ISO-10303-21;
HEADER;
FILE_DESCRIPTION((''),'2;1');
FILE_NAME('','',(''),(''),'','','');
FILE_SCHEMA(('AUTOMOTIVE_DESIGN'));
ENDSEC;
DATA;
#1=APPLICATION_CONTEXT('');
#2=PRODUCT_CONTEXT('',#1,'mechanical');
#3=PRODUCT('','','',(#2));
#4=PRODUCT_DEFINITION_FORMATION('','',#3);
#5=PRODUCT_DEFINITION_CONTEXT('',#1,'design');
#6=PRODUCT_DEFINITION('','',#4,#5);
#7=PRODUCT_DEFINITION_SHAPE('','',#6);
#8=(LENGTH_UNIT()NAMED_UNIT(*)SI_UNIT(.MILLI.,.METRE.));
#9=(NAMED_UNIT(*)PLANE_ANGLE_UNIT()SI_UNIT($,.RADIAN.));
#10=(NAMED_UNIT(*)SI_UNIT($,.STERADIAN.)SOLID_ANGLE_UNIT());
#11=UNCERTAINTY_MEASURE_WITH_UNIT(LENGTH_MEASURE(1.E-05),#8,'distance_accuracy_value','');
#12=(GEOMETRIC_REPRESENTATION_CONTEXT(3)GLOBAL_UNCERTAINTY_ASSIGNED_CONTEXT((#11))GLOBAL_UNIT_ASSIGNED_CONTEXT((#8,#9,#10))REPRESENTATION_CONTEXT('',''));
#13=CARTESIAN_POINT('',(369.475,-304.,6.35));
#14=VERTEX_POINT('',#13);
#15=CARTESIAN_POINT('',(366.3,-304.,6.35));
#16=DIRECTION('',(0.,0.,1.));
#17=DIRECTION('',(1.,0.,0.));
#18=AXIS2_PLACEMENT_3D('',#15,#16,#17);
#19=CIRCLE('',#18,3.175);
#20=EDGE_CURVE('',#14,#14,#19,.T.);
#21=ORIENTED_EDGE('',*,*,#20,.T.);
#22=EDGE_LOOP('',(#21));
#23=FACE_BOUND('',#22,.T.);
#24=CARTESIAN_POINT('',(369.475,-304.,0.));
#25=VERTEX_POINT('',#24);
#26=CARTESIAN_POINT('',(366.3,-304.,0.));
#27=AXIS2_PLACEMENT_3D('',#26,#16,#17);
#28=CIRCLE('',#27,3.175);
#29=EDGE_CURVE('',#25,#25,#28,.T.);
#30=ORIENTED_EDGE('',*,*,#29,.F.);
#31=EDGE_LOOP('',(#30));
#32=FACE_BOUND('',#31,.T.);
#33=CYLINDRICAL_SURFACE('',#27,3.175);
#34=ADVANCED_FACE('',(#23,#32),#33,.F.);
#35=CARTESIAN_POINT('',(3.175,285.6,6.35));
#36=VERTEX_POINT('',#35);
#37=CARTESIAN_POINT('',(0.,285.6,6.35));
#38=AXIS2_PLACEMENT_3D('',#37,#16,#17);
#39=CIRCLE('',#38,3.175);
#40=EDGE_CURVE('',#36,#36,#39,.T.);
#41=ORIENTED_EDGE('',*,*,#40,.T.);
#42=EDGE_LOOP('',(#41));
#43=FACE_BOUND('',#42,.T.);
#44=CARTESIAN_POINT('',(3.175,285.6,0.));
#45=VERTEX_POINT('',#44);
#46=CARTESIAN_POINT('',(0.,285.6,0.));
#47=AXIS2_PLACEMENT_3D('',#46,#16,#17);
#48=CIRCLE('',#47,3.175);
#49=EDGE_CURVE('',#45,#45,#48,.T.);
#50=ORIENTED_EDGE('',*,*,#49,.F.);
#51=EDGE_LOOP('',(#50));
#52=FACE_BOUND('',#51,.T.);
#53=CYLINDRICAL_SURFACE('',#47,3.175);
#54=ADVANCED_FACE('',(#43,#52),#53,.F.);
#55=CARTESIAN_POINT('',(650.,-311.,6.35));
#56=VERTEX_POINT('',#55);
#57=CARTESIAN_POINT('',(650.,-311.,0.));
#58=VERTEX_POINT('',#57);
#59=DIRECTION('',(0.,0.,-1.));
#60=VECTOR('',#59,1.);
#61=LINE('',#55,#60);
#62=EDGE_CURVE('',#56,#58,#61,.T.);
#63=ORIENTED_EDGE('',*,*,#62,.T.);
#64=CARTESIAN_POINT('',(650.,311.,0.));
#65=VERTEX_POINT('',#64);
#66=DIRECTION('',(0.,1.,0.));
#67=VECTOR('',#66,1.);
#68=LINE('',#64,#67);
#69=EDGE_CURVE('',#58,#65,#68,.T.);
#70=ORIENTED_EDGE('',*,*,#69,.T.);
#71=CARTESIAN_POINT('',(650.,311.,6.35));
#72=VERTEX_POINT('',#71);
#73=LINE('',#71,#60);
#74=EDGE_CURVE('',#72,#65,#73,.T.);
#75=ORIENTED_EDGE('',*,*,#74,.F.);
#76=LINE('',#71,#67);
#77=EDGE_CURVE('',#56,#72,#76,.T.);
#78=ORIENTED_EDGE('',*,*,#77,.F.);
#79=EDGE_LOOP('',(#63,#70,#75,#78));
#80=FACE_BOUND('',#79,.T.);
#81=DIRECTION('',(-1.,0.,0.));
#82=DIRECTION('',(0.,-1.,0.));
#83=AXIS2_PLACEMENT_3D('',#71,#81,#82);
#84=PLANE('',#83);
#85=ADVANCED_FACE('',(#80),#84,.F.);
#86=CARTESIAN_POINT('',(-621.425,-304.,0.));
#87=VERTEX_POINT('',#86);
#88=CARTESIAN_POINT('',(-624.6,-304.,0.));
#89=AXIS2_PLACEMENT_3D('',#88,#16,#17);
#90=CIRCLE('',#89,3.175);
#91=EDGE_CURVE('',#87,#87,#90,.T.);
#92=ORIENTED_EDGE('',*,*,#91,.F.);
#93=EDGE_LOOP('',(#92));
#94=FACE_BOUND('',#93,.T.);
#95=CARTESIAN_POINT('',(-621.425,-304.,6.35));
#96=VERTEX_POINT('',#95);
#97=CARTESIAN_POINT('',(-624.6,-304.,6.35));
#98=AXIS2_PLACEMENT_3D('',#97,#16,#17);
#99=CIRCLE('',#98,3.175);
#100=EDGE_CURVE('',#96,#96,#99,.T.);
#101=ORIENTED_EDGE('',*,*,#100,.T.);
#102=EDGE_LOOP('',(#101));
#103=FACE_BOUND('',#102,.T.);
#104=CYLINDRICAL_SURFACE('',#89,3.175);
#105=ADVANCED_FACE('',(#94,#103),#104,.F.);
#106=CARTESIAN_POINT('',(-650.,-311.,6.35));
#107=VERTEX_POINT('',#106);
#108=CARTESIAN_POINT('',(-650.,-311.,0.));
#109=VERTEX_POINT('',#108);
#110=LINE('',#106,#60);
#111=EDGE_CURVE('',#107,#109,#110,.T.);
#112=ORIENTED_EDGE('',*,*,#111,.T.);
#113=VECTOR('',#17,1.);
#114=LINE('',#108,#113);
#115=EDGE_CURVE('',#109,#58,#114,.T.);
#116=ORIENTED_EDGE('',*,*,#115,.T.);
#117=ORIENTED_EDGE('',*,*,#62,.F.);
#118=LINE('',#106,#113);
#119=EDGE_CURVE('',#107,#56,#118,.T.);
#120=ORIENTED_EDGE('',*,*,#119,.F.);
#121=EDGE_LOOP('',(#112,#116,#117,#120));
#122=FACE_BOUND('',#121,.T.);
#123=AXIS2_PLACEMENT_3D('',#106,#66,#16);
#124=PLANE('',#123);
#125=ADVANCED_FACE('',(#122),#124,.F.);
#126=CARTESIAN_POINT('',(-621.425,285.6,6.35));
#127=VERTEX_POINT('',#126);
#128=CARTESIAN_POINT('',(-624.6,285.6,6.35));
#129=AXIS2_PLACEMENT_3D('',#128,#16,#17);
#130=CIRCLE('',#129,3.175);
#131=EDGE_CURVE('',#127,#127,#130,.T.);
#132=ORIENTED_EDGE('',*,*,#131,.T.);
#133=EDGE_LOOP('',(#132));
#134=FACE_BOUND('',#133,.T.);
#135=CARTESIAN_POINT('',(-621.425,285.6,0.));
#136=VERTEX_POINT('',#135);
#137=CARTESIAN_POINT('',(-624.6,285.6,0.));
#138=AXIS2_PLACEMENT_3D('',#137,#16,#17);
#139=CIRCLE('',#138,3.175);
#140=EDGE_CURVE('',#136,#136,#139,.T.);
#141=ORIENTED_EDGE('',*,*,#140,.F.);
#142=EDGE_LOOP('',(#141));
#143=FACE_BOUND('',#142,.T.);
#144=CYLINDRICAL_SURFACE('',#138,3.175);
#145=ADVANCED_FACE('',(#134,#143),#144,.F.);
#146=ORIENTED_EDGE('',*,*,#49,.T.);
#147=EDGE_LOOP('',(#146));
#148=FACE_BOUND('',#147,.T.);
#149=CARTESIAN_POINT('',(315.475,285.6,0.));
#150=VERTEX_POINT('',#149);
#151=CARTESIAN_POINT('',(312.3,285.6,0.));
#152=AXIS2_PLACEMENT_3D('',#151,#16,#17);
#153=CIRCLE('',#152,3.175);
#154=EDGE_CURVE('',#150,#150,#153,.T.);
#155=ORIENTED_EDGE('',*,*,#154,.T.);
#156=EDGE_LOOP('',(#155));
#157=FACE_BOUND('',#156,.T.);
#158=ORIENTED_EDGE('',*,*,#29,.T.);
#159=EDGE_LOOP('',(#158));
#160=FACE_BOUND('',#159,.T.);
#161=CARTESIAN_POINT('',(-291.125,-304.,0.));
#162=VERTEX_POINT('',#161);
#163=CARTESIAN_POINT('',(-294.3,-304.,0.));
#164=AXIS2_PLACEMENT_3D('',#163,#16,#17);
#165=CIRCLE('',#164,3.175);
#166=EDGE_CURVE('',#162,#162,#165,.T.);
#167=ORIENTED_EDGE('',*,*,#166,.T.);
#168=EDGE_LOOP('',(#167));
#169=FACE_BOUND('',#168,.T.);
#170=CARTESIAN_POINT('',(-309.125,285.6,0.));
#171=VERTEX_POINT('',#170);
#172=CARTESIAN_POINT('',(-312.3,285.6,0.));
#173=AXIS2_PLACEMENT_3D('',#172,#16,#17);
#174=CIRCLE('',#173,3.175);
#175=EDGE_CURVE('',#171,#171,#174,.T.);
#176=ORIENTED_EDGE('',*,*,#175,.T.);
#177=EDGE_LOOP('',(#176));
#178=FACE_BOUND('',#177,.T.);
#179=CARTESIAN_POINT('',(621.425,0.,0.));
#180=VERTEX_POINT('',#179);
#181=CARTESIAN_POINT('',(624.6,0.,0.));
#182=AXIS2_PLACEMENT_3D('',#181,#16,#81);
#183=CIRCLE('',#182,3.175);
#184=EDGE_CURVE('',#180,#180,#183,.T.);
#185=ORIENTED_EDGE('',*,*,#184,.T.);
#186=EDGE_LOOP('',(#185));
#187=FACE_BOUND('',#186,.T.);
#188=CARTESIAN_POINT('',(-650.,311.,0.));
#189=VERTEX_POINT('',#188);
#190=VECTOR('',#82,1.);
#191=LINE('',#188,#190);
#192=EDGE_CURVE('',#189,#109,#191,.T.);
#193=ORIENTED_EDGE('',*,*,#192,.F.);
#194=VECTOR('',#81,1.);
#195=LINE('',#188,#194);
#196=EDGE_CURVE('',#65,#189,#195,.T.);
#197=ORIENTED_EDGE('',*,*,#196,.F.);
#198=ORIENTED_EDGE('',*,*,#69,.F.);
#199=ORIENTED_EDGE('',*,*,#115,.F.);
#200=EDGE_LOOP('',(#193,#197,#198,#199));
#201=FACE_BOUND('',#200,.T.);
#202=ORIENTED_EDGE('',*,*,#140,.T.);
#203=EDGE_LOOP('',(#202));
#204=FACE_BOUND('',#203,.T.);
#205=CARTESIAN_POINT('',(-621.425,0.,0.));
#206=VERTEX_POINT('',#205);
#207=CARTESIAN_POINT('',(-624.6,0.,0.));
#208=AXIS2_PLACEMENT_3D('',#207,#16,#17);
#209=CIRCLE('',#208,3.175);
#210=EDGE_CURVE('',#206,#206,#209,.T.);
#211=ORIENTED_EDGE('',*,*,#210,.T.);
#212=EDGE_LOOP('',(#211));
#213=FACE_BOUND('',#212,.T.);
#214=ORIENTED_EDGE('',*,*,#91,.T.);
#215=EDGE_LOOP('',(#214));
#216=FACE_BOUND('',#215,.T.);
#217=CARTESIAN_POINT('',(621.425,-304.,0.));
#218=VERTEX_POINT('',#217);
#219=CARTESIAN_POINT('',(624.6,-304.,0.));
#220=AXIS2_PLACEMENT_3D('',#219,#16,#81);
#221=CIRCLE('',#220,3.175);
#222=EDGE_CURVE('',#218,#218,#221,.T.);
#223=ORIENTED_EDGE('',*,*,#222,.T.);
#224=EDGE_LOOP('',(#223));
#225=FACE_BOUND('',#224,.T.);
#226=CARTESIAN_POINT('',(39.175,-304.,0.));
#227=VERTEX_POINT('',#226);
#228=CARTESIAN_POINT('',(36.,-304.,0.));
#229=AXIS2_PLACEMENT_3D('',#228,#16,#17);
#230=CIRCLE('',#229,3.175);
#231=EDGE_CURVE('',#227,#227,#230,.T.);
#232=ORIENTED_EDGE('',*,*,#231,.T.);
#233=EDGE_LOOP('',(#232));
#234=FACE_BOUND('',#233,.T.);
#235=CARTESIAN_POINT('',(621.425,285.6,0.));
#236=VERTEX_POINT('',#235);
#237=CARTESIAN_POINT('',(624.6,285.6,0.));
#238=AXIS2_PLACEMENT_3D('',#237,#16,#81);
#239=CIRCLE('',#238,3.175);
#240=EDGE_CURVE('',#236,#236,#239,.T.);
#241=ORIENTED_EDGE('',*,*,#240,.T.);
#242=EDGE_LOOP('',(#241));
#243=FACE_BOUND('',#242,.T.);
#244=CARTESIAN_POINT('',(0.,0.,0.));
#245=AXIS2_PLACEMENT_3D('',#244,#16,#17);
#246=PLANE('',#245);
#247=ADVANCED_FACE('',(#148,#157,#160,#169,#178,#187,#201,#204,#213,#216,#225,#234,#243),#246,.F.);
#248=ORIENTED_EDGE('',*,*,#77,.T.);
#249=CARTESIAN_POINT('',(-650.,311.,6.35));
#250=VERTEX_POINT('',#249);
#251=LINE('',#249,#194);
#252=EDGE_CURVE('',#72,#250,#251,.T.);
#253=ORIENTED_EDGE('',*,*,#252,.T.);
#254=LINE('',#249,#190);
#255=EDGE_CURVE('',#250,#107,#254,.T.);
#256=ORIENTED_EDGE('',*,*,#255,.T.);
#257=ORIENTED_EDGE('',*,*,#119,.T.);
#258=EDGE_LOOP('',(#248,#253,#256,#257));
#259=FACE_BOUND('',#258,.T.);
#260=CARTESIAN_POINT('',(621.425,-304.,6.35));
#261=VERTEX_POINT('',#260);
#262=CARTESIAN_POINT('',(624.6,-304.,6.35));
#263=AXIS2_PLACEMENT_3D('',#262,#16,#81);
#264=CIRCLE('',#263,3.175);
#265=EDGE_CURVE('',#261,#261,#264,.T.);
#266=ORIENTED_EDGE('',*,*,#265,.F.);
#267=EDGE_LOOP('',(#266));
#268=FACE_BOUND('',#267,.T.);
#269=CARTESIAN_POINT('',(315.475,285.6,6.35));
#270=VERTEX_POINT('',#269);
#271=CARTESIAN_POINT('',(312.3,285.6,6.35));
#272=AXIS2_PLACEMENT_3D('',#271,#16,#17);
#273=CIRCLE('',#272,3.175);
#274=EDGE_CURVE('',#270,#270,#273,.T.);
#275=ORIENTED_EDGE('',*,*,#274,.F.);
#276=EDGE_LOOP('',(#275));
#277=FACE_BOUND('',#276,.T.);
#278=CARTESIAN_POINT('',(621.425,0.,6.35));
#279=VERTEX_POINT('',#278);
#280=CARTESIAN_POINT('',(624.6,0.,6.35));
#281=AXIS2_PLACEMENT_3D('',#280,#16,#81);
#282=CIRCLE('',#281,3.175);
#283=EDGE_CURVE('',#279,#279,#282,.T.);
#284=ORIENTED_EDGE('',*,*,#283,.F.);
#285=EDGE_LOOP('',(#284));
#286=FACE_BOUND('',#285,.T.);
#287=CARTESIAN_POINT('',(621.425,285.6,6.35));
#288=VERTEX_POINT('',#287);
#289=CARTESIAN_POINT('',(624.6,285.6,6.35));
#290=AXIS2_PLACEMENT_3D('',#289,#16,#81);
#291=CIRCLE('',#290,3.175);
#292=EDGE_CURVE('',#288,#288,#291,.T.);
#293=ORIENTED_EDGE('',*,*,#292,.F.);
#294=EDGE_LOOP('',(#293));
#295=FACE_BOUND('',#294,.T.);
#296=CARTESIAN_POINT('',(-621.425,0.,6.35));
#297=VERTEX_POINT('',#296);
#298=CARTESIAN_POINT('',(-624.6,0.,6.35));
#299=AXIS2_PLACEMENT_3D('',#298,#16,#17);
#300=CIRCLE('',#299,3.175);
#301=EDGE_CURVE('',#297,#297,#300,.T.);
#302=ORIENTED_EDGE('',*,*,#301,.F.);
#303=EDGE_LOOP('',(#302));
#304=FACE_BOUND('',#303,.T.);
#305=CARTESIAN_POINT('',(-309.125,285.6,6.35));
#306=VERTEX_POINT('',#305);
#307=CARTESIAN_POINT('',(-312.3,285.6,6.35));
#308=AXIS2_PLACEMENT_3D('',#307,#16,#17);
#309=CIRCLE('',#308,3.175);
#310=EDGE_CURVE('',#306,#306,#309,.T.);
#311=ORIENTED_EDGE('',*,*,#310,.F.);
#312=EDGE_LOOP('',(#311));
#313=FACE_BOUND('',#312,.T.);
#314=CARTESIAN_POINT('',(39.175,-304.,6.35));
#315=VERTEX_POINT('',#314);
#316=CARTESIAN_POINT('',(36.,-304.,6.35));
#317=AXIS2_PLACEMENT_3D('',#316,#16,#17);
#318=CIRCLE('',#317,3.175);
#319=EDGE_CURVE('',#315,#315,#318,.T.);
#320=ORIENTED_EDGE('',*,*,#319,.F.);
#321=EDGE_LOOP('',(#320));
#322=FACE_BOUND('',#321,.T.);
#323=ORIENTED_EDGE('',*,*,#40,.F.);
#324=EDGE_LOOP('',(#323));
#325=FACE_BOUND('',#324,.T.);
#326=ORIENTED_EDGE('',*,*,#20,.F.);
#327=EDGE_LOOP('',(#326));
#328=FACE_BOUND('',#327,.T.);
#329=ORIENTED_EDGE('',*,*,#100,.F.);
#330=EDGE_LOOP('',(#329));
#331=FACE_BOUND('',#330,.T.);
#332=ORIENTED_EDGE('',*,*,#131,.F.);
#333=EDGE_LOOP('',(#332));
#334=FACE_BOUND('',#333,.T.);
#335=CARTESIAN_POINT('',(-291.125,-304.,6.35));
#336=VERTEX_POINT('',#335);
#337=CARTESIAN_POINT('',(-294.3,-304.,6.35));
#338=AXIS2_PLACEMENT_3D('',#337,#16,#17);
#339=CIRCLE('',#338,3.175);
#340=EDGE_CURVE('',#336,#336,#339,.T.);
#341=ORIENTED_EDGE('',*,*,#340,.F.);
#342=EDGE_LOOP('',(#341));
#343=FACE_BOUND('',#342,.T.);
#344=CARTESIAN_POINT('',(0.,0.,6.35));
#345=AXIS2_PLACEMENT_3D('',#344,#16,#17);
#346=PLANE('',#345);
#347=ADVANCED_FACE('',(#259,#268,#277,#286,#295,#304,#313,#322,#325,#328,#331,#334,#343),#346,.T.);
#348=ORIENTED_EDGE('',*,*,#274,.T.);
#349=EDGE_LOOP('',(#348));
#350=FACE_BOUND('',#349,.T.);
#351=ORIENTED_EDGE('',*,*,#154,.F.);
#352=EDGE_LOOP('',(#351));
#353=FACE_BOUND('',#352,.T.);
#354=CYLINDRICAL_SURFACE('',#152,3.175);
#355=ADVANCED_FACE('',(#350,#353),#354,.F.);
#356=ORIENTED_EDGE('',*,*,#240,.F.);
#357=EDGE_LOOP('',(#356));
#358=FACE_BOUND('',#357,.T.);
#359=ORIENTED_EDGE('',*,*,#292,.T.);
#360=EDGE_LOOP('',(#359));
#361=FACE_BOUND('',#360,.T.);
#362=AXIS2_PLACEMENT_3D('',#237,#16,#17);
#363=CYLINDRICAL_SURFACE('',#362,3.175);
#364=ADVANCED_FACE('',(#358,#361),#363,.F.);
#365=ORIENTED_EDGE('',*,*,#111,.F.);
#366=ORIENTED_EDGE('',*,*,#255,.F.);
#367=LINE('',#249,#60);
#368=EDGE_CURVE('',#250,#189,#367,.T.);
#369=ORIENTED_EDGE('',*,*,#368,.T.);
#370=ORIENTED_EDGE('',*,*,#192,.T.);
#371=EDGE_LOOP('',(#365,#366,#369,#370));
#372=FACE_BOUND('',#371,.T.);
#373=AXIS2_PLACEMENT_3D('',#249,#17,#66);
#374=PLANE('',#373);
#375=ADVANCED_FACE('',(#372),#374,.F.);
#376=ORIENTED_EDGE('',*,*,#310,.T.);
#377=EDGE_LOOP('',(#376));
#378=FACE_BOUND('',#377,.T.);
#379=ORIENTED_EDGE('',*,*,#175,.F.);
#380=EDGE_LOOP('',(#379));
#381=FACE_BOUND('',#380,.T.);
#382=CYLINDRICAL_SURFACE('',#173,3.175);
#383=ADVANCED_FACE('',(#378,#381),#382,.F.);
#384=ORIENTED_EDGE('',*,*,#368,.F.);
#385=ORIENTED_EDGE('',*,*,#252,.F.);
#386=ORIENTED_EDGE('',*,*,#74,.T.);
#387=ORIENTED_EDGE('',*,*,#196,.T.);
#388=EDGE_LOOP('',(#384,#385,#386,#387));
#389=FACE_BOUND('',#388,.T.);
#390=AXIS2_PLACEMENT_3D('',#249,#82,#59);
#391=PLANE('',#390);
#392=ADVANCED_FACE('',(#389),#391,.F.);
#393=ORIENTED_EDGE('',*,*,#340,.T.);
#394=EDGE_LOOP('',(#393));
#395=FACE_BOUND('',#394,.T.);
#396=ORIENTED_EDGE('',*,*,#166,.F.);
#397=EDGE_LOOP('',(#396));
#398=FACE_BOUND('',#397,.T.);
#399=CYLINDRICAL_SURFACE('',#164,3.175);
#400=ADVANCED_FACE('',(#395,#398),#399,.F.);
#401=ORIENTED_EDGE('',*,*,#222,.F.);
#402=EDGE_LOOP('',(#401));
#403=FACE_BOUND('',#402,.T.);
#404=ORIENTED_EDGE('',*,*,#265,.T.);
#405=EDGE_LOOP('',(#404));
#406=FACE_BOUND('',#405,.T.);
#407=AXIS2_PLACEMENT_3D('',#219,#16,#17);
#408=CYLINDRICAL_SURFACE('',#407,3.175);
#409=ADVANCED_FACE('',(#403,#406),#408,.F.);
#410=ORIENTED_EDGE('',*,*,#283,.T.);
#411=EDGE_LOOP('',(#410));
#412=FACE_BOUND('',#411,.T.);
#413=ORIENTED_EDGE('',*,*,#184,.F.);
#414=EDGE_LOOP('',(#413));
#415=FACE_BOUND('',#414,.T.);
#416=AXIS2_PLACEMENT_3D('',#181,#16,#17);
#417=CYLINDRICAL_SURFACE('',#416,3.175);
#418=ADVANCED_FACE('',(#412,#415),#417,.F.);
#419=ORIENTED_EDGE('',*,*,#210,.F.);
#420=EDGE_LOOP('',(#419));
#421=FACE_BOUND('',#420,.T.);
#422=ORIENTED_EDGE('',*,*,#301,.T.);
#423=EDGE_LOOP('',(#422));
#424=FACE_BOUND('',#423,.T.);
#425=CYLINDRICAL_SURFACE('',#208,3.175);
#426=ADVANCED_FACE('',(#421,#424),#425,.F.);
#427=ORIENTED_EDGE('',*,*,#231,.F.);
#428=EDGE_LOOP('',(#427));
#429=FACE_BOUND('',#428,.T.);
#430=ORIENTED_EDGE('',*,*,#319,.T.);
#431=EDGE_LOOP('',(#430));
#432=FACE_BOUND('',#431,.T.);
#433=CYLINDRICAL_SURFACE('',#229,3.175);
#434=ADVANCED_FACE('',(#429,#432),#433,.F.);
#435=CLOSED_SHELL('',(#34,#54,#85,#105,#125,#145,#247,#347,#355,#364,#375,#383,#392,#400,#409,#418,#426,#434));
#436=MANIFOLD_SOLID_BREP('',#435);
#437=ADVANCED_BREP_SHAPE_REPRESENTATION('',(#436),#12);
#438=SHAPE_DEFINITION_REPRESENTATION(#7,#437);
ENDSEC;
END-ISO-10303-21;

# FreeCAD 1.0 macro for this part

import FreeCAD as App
import Part
import Sketcher

V = App.Vector
Q = App.Units.Quantity


def add_polygon(sketch, points):
    """Adds a closed chain of lines whose ends are joined by coincident constraints."""
    first, n = sketch.GeometryCount, len(points)
    for a, b in zip(points, points[1:] + points[:1]):
        sketch.addGeometry(Part.LineSegment(App.Vector(*a, 0), App.Vector(*b, 0)), False)
    for i in range(n):
        sketch.addConstraint(Sketcher.Constraint("Coincident", first + i, 2, first + (i + 1) % n, 1))

doc = App.newDocument("Part")
params = doc.addObject("Spreadsheet::Sheet", "Params")
for row, (alias, value) in enumerate([
    ("sketch1_width", "1300 mm"),
    ("sketch1_height", "622 mm"),
    ("pad1_length", "6.35 mm"),
    ("sketch2_diameter", "6.35 mm"),
    ("pocket1_length", "6.35 mm"),
], start=1):
    params.set(f"A{row}", alias)
    params.set(f"B{row}", "=" + value)
    params.setAlias(f"B{row}", alias)

body = doc.addObject("PartDesign::Body", "Body")

# Sketch on XY plane
sketch1 = doc.addObject("Sketcher::SketchObject", "Sketch")
body.addObject(sketch1)
sketch1.AttachmentSupport = (doc.XY_Plane, [""])
sketch1.MapMode = "FlatFace"
add_polygon(sketch1, [(-650, 311), (-650, -311), (650, -311), (650, 311)])  # lines 0-3
sketch1.addConstraint([
    Sketcher.Constraint("Vertical", 0),
    Sketcher.Constraint("Horizontal", 1),
    Sketcher.Constraint("Vertical", 2),
    Sketcher.Constraint("Horizontal", 3),
    Sketcher.Constraint("Symmetric", 0, 2, 2, 2, -1, 1),
    Sketcher.Constraint("DistanceX", 1, 1, 1, 2, Q("1300 mm")),
    Sketcher.Constraint("DistanceY", 0, 2, 0, 1, Q("622 mm")),
])
sketch1.setExpression("Constraints[9]", "Params.sketch1_width")
sketch1.setExpression("Constraints[10]", "Params.sketch1_height")
pad1 = doc.addObject("PartDesign::Pad", "Pad")
body.addObject(pad1)
pad1.Profile = sketch1
pad1.setExpression("Length", "Params.pad1_length")

# Sketch on XY plane
sketch2 = doc.addObject("Sketcher::SketchObject", "Sketch001")
body.addObject(sketch2)
sketch2.AttachmentSupport = (doc.XY_Plane, [""])
sketch2.MapMode = "FlatFace"
sketch2.AttachmentOffset = App.Placement(V(0, 0, 6.35), App.Rotation())
sketch2.addGeometry([
    Part.Circle(V(-624.6, 285.6, 0), V(0, 0, 1), 3.175),  # 0
    Part.Circle(V(0, 285.6, 0), V(0, 0, 1), 3.175),  # 1
    Part.Circle(V(624.6, 285.6, 0), V(0, 0, 1), 3.175),  # 2
    Part.Circle(V(-312.3, 285.6, 0), V(0, 0, 1), 3.175),  # 3
    Part.Circle(V(312.3, 285.6, 0), V(0, 0, 1), 3.175),  # 4
    Part.Circle(V(-624.6, 0, 0), V(0, 0, 1), 3.175),  # 5
    Part.Circle(V(624.6, 0, 0), V(0, 0, 1), 3.175),  # 6
    Part.Circle(V(-624.6, -304, 0), V(0, 0, 1), 3.175),  # 7
    Part.Circle(V(624.6, -304, 0), V(0, 0, 1), 3.175),  # 8
    Part.Circle(V(-294.3, -304, 0), V(0, 0, 1), 3.175),  # 9
    Part.Circle(V(36, -304, 0), V(0, 0, 1), 3.175),  # 10
    Part.Circle(V(366.3, -304, 0), V(0, 0, 1), 3.175),  # 11
], False)
sketch2.addConstraint([
    Sketcher.Constraint("Equal", 0, 1),
    Sketcher.Constraint("Equal", 1, 2),
    Sketcher.Constraint("Equal", 2, 3),
    Sketcher.Constraint("Equal", 3, 4),
    Sketcher.Constraint("Equal", 4, 5),
    Sketcher.Constraint("Equal", 5, 6),
    Sketcher.Constraint("Equal", 6, 7),
    Sketcher.Constraint("Equal", 7, 8),
    Sketcher.Constraint("Equal", 8, 9),
    Sketcher.Constraint("Equal", 9, 10),
    Sketcher.Constraint("Equal", 10, 11),
    Sketcher.Constraint("Symmetric", 5, 3, 6, 3, -1, 1),
    Sketcher.Constraint("Symmetric", 0, 3, 2, 3, -2),
    Sketcher.Constraint("Symmetric", 3, 3, 4, 3, -2),
    Sketcher.Constraint("Symmetric", 7, 3, 8, 3, -2),
    Sketcher.Constraint("PointOnObject", 1, 3, -2),
    Sketcher.Constraint("PointOnObject", 5, 3, -1),
    Sketcher.Constraint("Horizontal", 0, 3, 1, 3),
    Sketcher.Constraint("Horizontal", 2, 3, 3, 3),
    Sketcher.Constraint("Horizontal", 8, 3, 9, 3),
    Sketcher.Constraint("Horizontal", 9, 3, 10, 3),
    Sketcher.Constraint("Horizontal", 10, 3, 11, 3),
    Sketcher.Constraint("Vertical", 0, 3, 5, 3),
    Sketcher.Constraint("Vertical", 5, 3, 7, 3),
    Sketcher.Constraint("Diameter", 0, Q("6.35 mm")),
    Sketcher.Constraint("DistanceY", 7, 3, -1, 1, Q("304 mm")),
    Sketcher.Constraint("DistanceX", -1, 1, 10, 3, Q("36 mm")),
    Sketcher.Constraint("DistanceX", 3, 3, 9, 3, Q("18 mm")),
    Sketcher.Constraint("DistanceX", 4, 3, 11, 3, Q("54 mm")),
    Sketcher.Constraint("DistanceX", 0, 3, -1, 1, Q("624.6 mm")),
    Sketcher.Constraint("DistanceY", -1, 1, 0, 3, Q("285.6 mm")),
    Sketcher.Constraint("DistanceX", 3, 3, -1, 1, Q("312.3 mm")),
])
sketch2.setExpression("Constraints[24]", "Params.sketch2_diameter")
pocket1 = doc.addObject("PartDesign::Pocket", "Pocket")
body.addObject(pocket1)
pocket1.Profile = sketch2
pocket1.setExpression("Length", "Params.pocket1_length")

doc.recompute()
